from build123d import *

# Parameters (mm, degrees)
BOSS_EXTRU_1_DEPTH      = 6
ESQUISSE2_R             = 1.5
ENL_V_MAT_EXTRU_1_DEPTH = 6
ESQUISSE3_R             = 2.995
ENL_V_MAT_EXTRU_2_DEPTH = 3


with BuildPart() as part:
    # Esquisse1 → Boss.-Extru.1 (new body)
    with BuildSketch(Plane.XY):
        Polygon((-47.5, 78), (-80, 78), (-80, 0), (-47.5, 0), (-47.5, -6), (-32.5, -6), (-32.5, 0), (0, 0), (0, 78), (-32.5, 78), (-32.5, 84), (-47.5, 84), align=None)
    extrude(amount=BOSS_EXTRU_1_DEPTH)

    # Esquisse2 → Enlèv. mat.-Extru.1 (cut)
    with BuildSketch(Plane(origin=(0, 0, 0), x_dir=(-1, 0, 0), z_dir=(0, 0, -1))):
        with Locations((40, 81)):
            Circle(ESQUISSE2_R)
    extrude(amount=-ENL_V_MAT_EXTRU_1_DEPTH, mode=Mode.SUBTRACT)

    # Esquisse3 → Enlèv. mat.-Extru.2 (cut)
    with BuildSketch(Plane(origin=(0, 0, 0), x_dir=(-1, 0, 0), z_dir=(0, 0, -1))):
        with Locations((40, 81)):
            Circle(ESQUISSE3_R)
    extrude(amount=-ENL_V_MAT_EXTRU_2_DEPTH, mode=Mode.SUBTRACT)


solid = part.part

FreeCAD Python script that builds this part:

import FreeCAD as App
import Part
import Sketcher
Q = App.Units.Quantity


def add_polygon(sketch, points):
    """Adds a closed chain of lines whose ends are joined by coincident constraints."""
    first, n = sketch.GeometryCount, len(points)
    for a, b in zip(points, points[1:] + points[:1]):
        sketch.addGeometry(Part.LineSegment(App.Vector(*a, 0), App.Vector(*b, 0)), False)
    for i in range(n):
        sketch.addConstraint(Sketcher.Constraint("Coincident", first + i, 2, first + (i + 1) % n, 1))

doc = App.newDocument("Part")
body = doc.addObject("PartDesign::Body", "Body")

# Sketch on XY plane
sketch1 = doc.addObject("Sketcher::SketchObject", "Sketch")
body.addObject(sketch1)
sketch1.AttachmentSupport = (doc.XY_Plane, [""])
sketch1.MapMode = "FlatFace"
add_polygon(sketch1, [(-48, 78), (-80, 78), (-80, 0), (-48, 0), (-48, -6), (-32, -6), (-32, 0), (0, 0), (0, 78), (-32, 78), (-32, 84), (-48, 84)])  # lines 0-11
sketch1.addConstraint([
    Sketcher.Constraint("Horizontal", 0),
    Sketcher.Constraint("Vertical", 1),
    Sketcher.Constraint("Horizontal", 2),
    Sketcher.Constraint("Vertical", 3),
    Sketcher.Constraint("Horizontal", 4),
    Sketcher.Constraint("Vertical", 5),
    Sketcher.Constraint("Horizontal", 6),
    Sketcher.Constraint("Vertical", 7),
    Sketcher.Constraint("Horizontal", 8),
    Sketcher.Constraint("Vertical", 9),
    Sketcher.Constraint("Horizontal", 10),
    Sketcher.Constraint("Vertical", 11),
    Sketcher.Constraint("Coincident", 6, 2, -1, 1),
    Sketcher.Constraint("PointOnObject", 1, 2, -1),
    Sketcher.Constraint("Horizontal", 0, 2, 7, 2),
    Sketcher.Constraint("Vertical", 5, 2, 8, 2),
    Sketcher.Constraint("Vertical", 3, 2, 10, 2),
    Sketcher.Constraint("Equal", 2, 6),
    Sketcher.Constraint("Equal", 5, 9),
    Sketcher.Constraint("DistanceX", 4, 1, 4, 2, Q("15 mm")),
    Sketcher.Constraint("DistanceY", 1, 2, 1, 1, Q("78 mm")),
    Sketcher.Constraint("DistanceY", 3, 2, 3, 1, Q("6 mm")),
    Sketcher.Constraint("DistanceX", 0, 2, 0, 1, Q("32.5 mm")),
])
pad1 = doc.addObject("PartDesign::Pad", "Pad")
body.addObject(pad1)
pad1.Profile = sketch1
pad1.Length = 6

# Sketch on XY plane
sketch2 = doc.addObject("Sketcher::SketchObject", "Sketch001")
body.addObject(sketch2)
sketch2.AttachmentSupport = (doc.XY_Plane, [""])
sketch2.MapMode = "FlatFace"
sketch2.addGeometry(Part.Circle(App.Vector(-40, 81, 0), App.Vector(0, 0, 1), 1.5), False)
sketch2.addConstraint([
    Sketcher.Constraint("Diameter", 0, Q("3 mm")),
    Sketcher.Constraint("DistanceX", 0, 3, -1, 1, Q("40 mm")),
    Sketcher.Constraint("DistanceY", -1, 1, 0, 3, Q("81 mm")),
])
pocket1 = doc.addObject("PartDesign::Pocket", "Pocket")
body.addObject(pocket1)
pocket1.Profile = sketch2
pocket1.Length = 6
pocket1.Reversed = True

# Sketch on XY plane
sketch3 = doc.addObject("Sketcher::SketchObject", "Sketch002")
body.addObject(sketch3)
sketch3.AttachmentSupport = (doc.XY_Plane, [""])
sketch3.MapMode = "FlatFace"
sketch3.addGeometry(Part.Circle(App.Vector(-40, 81, 0), App.Vector(0, 0, 1), 3), False)
sketch3.addConstraint([
    Sketcher.Constraint("Diameter", 0, Q("5.99 mm")),
    Sketcher.Constraint("DistanceX", 0, 3, -1, 1, Q("40 mm")),
    Sketcher.Constraint("DistanceY", -1, 1, 0, 3, Q("81 mm")),
])
pocket2 = doc.addObject("PartDesign::Pocket", "Pocket001")
body.addObject(pocket2)
pocket2.Profile = sketch3
pocket2.Length = 3
pocket2.Reversed = True

doc.recompute()
